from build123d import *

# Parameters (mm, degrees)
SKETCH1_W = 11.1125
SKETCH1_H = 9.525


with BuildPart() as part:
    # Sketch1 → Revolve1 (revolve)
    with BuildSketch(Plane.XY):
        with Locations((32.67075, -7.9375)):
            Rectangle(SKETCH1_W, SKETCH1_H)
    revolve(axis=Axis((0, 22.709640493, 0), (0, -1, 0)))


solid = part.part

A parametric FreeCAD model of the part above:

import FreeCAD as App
import Part
import Sketcher

V = App.Vector
Q = App.Units.Quantity

doc = App.newDocument("Part")
body = doc.addObject("PartDesign::Body", "Body")

# Sketch on XY plane
sketch1 = doc.addObject("Sketcher::SketchObject", "Sketch")
body.addObject(sketch1)
sketch1.AttachmentSupport = (doc.XY_Plane, [""])
sketch1.MapMode = "FlatFace"
sketch1.addGeometry([
    Part.LineSegment(V(27, -3, 0), V(27, -13, 0)),
    Part.LineSegment(V(27, -13, 0), V(38, -13, 0)),
    Part.LineSegment(V(38, -13, 0), V(38, -3, 0)),
    Part.LineSegment(V(38, -3, 0), V(27, -3, 0)),
], False)
sketch1.addConstraint([
    Sketcher.Constraint("Coincident", 0, 2, 1, 1),
    Sketcher.Constraint("Coincident", 1, 2, 2, 1),
    Sketcher.Constraint("Coincident", 2, 2, 3, 1),
    Sketcher.Constraint("Coincident", 3, 2, 0, 1),
    Sketcher.Constraint("Vertical", 0),
    Sketcher.Constraint("Horizontal", 1),
    Sketcher.Constraint("Vertical", 2),
    Sketcher.Constraint("Horizontal", 3),
    Sketcher.Constraint("DistanceY", 0, 2, -1, 1, Q("0.5 in")),
    Sketcher.Constraint("DistanceX", 1, 1, 1, 2, Q("0.4375 in")),
    Sketcher.Constraint("DistanceY", 0, 2, 0, 1, Q("0.375 in")),
    Sketcher.Constraint("DistanceX", -1, 1, 1, 2, Q("1.505 in")),
])
revolution = doc.addObject("PartDesign::Revolution", "Revolution")
body.addObject(revolution)
revolution.Profile = sketch1
revolution.ReferenceAxis = (sketch1, ["V_Axis"])
revolution.Angle = 360

doc.recompute()
